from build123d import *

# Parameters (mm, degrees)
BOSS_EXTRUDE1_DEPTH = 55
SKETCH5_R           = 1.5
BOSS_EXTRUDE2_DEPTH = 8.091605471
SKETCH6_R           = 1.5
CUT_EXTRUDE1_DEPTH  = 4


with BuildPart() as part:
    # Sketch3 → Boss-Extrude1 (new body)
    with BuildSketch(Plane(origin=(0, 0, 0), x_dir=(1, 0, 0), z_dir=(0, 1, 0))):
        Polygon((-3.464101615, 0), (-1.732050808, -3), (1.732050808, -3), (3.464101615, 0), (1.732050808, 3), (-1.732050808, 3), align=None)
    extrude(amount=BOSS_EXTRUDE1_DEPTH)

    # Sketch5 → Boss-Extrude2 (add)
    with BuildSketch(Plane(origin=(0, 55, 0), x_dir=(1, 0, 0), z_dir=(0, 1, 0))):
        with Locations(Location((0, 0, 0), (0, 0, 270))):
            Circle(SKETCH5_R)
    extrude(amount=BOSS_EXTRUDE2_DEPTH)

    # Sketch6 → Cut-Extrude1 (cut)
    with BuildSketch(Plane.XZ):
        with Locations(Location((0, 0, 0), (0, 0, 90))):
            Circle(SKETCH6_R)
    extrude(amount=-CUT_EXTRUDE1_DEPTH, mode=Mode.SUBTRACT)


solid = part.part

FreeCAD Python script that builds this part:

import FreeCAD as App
import Part
import Sketcher
from FreeCAD import Vector
Q = App.Units.Quantity

doc = App.newDocument("Part")
body = doc.addObject("PartDesign::Body", "Body")

sketch1 = doc.addObject("Sketcher::SketchObject", "Sketch")
body.addObject(sketch1)
sketch1.AttachmentSupport = (doc.XZ_Plane, [""])
sketch1.MapMode = "FlatFace"
sketch1.addGeometry(Part.LineSegment(Vector(-3.464102, 0, 0), Vector(-1.732051, 3, 0)), False)
sketch1.addGeometry(Part.LineSegment(Vector(-1.732051, 3, 0), Vector(1.732051, 3, 0)), False)
sketch1.addGeometry(Part.LineSegment(Vector(1.732051, 3, 0), Vector(3.464102, 0, 0)), False)
sketch1.addGeometry(Part.LineSegment(Vector(3.464102, 0, 0), Vector(1.732051, -3, 0)), False)
sketch1.addGeometry(Part.LineSegment(Vector(1.732051, -3, 0), Vector(-1.732051, -3, 0)), False)
sketch1.addGeometry(Part.LineSegment(Vector(-1.732051, -3, 0), Vector(-3.464102, 0, 0)), False)
sketch1.addConstraint(Sketcher.Constraint("Coincident", 0, 2, 1, 1))
sketch1.addConstraint(Sketcher.Constraint("Coincident", 1, 2, 2, 1))
sketch1.addConstraint(Sketcher.Constraint("Coincident", 2, 2, 3, 1))
sketch1.addConstraint(Sketcher.Constraint("Coincident", 3, 2, 4, 1))
sketch1.addConstraint(Sketcher.Constraint("Coincident", 4, 2, 5, 1))
sketch1.addConstraint(Sketcher.Constraint("Coincident", 5, 2, 0, 1))
sketch1.addConstraint(Sketcher.Constraint("Horizontal", 1))
sketch1.addConstraint(Sketcher.Constraint("Horizontal", 4))
sketch1.addConstraint(Sketcher.Constraint("Symmetric", 0, 2, 3, 2, -1, 1))
sketch1.addConstraint(Sketcher.Constraint("Symmetric", 2, 2, 5, 2, -1, 1))
sketch1.addConstraint(Sketcher.Constraint("PointOnObject", 2, 2, -1))
sketch1.addConstraint(Sketcher.Constraint("Parallel", 2, 5))
sketch1.addConstraint(Sketcher.Constraint("Vertical", 1, 2, 3, 2))
sketch1.addConstraint(Sketcher.Constraint("Angle", 0, Q("60 deg")))
sketch1.addConstraint(Sketcher.Constraint("DistanceY", -1, 1, 0, 2, 3.0))
sketch1.addConstraint(Sketcher.Constraint("DistanceX", 1, 1, 1, 2, 3.464102))
pad1 = doc.addObject("PartDesign::Pad", "Pad")
body.addObject(pad1)
pad1.Profile = sketch1
pad1.Length = 55
pad1.Reversed = True

sketch2 = doc.addObject("Sketcher::SketchObject", "Sketch001")
body.addObject(sketch2)
sketch2.AttachmentSupport = (doc.XZ_Plane, [""])
sketch2.MapMode = "FlatFace"
sketch2.AttachmentOffset = App.Placement(Vector(0, 0, -55), App.Rotation())
sketch2.addGeometry(Part.Circle(Vector(0, 0, 0), Vector(0, 0, 1), 1.5), False)
sketch2.addConstraint(Sketcher.Constraint("Coincident", 0, 3, -1, 1))
sketch2.addConstraint(Sketcher.Constraint("Diameter", 0, 3.0))
pad2 = doc.addObject("PartDesign::Pad", "Pad001")
body.addObject(pad2)
pad2.Profile = sketch2
pad2.Length = 8.091605
pad2.Reversed = True

sketch3 = doc.addObject("Sketcher::SketchObject", "Sketch002")
body.addObject(sketch3)
sketch3.AttachmentSupport = (doc.XZ_Plane, [""])
sketch3.MapMode = "FlatFace"
sketch3.addGeometry(Part.Circle(Vector(0, 0, 0), Vector(0, 0, 1), 1.5), False)
sketch3.addConstraint(Sketcher.Constraint("Coincident", 0, 3, -1, 1))
sketch3.addConstraint(Sketcher.Constraint("Diameter", 0, 3.0))
pocket1 = doc.addObject("PartDesign::Pocket", "Pocket")
body.addObject(pocket1)
pocket1.Profile = sketch3
pocket1.Length = 4

doc.recompute()
